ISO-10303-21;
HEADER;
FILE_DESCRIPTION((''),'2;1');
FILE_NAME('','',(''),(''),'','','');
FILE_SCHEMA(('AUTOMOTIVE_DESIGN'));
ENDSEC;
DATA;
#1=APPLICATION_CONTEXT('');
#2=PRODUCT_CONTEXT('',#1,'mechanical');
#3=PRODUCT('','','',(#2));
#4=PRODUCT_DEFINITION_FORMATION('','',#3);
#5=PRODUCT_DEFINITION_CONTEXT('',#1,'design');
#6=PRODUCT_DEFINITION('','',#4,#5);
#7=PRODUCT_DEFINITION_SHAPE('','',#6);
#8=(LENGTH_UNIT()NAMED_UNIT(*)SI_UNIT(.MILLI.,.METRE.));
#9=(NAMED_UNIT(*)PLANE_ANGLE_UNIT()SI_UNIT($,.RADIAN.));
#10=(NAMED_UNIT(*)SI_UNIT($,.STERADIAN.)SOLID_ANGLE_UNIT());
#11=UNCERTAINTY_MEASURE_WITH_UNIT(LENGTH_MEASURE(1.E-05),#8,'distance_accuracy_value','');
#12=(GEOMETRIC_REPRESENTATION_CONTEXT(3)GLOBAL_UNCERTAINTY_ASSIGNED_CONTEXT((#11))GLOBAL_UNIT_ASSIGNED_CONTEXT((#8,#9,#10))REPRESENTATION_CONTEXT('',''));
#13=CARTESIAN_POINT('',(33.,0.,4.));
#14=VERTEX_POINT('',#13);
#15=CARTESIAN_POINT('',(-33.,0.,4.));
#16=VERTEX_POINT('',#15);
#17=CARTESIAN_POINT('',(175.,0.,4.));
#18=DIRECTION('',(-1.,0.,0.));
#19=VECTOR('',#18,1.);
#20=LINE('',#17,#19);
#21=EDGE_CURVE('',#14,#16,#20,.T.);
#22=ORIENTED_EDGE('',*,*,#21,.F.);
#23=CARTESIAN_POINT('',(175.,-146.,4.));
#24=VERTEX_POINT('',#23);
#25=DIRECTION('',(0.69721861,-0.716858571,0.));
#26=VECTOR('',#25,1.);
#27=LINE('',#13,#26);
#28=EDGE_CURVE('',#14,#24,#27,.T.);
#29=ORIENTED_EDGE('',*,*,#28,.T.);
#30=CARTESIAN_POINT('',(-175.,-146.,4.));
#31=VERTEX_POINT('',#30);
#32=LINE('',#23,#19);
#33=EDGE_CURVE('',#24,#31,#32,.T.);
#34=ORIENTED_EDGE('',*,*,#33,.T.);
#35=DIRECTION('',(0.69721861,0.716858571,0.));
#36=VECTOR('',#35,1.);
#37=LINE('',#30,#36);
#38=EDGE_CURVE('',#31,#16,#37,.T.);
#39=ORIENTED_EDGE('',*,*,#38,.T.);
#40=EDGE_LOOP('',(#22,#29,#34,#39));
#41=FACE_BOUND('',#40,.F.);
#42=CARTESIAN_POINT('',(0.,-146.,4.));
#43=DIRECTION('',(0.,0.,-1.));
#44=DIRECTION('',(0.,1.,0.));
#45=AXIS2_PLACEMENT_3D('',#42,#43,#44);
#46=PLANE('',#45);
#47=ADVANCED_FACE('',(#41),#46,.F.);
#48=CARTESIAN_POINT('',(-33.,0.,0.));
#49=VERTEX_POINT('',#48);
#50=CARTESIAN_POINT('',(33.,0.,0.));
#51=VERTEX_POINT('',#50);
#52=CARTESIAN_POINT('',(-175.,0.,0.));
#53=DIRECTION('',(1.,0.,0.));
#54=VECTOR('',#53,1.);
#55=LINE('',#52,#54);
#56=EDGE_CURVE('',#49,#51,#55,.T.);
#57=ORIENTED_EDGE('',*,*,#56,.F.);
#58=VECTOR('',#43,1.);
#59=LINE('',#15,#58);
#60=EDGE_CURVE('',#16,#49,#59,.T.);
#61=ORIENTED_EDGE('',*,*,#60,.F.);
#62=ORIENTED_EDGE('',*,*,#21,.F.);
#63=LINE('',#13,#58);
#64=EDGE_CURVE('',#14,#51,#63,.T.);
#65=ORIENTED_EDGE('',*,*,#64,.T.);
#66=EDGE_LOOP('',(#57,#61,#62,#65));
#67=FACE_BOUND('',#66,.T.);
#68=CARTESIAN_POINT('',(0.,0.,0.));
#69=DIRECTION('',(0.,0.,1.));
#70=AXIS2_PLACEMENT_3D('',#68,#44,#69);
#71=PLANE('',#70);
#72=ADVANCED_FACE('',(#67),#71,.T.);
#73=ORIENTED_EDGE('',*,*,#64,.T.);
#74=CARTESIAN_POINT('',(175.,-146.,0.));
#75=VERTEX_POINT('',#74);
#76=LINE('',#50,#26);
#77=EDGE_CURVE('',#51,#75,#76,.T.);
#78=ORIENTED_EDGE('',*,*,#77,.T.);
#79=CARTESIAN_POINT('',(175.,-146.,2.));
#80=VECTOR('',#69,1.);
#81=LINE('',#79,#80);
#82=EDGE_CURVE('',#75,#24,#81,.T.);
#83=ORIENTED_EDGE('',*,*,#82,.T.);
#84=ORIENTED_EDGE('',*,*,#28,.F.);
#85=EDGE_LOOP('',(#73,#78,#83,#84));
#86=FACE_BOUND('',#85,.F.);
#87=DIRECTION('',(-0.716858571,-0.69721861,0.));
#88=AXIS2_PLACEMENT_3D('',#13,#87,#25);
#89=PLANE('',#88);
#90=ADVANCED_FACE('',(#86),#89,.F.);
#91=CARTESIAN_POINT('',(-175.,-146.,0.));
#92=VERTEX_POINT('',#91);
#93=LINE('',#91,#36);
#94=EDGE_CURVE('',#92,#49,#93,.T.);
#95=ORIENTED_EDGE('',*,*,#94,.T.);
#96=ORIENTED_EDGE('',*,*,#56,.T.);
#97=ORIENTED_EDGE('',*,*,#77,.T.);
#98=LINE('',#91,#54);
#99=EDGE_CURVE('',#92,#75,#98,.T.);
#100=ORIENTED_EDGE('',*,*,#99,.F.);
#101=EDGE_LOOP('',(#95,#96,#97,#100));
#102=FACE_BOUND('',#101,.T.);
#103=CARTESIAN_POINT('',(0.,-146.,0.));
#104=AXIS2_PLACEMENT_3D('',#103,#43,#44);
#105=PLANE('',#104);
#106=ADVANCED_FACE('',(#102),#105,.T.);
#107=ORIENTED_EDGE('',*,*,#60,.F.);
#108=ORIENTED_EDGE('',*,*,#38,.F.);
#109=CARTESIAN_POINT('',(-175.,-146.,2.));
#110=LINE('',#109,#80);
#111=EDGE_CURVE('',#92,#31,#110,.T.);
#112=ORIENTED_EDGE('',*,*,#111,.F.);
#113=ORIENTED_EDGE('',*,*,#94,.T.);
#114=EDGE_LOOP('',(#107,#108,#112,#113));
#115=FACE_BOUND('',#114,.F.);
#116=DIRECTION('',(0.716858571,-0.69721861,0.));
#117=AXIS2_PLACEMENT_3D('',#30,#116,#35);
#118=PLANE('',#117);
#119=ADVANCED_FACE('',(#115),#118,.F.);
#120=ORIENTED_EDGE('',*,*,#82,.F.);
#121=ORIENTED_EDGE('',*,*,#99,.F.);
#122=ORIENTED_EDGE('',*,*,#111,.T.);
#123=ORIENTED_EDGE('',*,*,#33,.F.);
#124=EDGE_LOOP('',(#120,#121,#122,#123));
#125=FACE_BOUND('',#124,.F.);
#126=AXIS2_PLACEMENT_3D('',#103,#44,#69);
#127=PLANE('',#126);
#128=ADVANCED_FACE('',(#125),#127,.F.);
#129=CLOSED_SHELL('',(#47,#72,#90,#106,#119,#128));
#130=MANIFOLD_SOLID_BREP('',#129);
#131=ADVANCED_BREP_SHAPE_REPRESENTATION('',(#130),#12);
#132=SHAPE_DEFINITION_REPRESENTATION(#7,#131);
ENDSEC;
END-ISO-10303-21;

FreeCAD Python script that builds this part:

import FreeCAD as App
import Part
import Sketcher
Q = App.Units.Quantity


def add_polygon(sketch, points):
    """Adds a closed chain of lines whose ends are joined by coincident constraints."""
    first, n = sketch.GeometryCount, len(points)
    for a, b in zip(points, points[1:] + points[:1]):
        sketch.addGeometry(Part.LineSegment(App.Vector(*a, 0), App.Vector(*b, 0)), False)
    for i in range(n):
        sketch.addConstraint(Sketcher.Constraint("Coincident", first + i, 2, first + (i + 1) % n, 1))

doc = App.newDocument("Part")
params = doc.addObject("Spreadsheet::Sheet", "Params")
for row, (alias, value) in enumerate([
    ("sketch1_width", "146 mm"),
    ("sketch1_height", "4 mm"),
    ("pad1_length", "350 mm"),
    ("sketch2_width", "142 mm"),
    ("sketch2_height", "146 mm"),
], start=1):
    params.set(f"A{row}", alias)
    params.set(f"B{row}", "=" + value)
    params.setAlias(f"B{row}", alias)

body = doc.addObject("PartDesign::Body", "Body")

# Sketch on YZ plane
sketch1 = body.newObject("Sketcher::SketchObject", "Sketch")
sketch1.AttachmentSupport = (doc.getObject("YZ_Plane"), [""])
sketch1.MapMode = "FlatFace"
add_polygon(sketch1, [(-146, 4), (-146, 0), (0, 0), (0, 4)])  # lines 0-3
sketch1.addConstraint(Sketcher.Constraint("Vertical", 0))
sketch1.addConstraint(Sketcher.Constraint("Horizontal", 1))
sketch1.addConstraint(Sketcher.Constraint("Vertical", 2))
sketch1.addConstraint(Sketcher.Constraint("Horizontal", 3))
sketch1.addConstraint(Sketcher.Constraint("Coincident", 1, 2, -1, 1))
sketch1.addConstraint(Sketcher.Constraint("DistanceX", 1, 1, 1, 2, Q("146 mm")))
sketch1.addConstraint(Sketcher.Constraint("DistanceY", 0, 2, 0, 1, Q("4 mm")))
sketch1.setExpression("Constraints[9]", "Params.sketch1_width")
sketch1.setExpression("Constraints[10]", "Params.sketch1_height")
pad1 = body.newObject("PartDesign::Pad", "Pad")
pad1.Profile = sketch1
pad1.setExpression("Length", "Params.pad1_length")
pad1.Midplane = True

# Sketch on XY plane
sketch2 = body.newObject("Sketcher::SketchObject", "Sketch001")
sketch2.AttachmentSupport = (doc.getObject("XY_Plane"), [""])
sketch2.MapMode = "FlatFace"
sketch2.AttachmentOffset = App.Placement(App.Vector(0, 0, 4), App.Rotation())
add_polygon(sketch2, [(-175, 0), (-175, -146), (-33, 0)])  # lines 0-2
add_polygon(sketch2, [(33, 0), (175, -146), (175, 0)])  # lines 3-5
sketch2.addConstraint(Sketcher.Constraint("Vertical", 0))
sketch2.addConstraint(Sketcher.Constraint("Horizontal", 2))
sketch2.addConstraint(Sketcher.Constraint("Vertical", 4))
sketch2.addConstraint(Sketcher.Constraint("Horizontal", 5))
sketch2.addConstraint(Sketcher.Constraint("Symmetric", 2, 2, 4, 2, -1, 1))
sketch2.addConstraint(Sketcher.Constraint("Symmetric", 1, 2, 5, 2, -2))
sketch2.addConstraint(Sketcher.Constraint("Horizontal", 0, 2, 3, 2))
sketch2.addConstraint(Sketcher.Constraint("DistanceX", 2, 2, 2, 1, Q("142 mm")))
sketch2.addConstraint(Sketcher.Constraint("DistanceY", 0, 2, 0, 1, Q("146 mm")))
sketch2.addConstraint(Sketcher.Constraint("DistanceX", 0, 2, -1, 1, Q("175 mm")))
sketch2.setExpression("Constraints[13]", "Params.sketch2_width")
sketch2.setExpression("Constraints[14]", "Params.sketch2_height")
pocket1 = body.newObject("PartDesign::Pocket", "Pocket")
pocket1.Profile = sketch2
pocket1.Type = "ThroughAll"

doc.recompute()
